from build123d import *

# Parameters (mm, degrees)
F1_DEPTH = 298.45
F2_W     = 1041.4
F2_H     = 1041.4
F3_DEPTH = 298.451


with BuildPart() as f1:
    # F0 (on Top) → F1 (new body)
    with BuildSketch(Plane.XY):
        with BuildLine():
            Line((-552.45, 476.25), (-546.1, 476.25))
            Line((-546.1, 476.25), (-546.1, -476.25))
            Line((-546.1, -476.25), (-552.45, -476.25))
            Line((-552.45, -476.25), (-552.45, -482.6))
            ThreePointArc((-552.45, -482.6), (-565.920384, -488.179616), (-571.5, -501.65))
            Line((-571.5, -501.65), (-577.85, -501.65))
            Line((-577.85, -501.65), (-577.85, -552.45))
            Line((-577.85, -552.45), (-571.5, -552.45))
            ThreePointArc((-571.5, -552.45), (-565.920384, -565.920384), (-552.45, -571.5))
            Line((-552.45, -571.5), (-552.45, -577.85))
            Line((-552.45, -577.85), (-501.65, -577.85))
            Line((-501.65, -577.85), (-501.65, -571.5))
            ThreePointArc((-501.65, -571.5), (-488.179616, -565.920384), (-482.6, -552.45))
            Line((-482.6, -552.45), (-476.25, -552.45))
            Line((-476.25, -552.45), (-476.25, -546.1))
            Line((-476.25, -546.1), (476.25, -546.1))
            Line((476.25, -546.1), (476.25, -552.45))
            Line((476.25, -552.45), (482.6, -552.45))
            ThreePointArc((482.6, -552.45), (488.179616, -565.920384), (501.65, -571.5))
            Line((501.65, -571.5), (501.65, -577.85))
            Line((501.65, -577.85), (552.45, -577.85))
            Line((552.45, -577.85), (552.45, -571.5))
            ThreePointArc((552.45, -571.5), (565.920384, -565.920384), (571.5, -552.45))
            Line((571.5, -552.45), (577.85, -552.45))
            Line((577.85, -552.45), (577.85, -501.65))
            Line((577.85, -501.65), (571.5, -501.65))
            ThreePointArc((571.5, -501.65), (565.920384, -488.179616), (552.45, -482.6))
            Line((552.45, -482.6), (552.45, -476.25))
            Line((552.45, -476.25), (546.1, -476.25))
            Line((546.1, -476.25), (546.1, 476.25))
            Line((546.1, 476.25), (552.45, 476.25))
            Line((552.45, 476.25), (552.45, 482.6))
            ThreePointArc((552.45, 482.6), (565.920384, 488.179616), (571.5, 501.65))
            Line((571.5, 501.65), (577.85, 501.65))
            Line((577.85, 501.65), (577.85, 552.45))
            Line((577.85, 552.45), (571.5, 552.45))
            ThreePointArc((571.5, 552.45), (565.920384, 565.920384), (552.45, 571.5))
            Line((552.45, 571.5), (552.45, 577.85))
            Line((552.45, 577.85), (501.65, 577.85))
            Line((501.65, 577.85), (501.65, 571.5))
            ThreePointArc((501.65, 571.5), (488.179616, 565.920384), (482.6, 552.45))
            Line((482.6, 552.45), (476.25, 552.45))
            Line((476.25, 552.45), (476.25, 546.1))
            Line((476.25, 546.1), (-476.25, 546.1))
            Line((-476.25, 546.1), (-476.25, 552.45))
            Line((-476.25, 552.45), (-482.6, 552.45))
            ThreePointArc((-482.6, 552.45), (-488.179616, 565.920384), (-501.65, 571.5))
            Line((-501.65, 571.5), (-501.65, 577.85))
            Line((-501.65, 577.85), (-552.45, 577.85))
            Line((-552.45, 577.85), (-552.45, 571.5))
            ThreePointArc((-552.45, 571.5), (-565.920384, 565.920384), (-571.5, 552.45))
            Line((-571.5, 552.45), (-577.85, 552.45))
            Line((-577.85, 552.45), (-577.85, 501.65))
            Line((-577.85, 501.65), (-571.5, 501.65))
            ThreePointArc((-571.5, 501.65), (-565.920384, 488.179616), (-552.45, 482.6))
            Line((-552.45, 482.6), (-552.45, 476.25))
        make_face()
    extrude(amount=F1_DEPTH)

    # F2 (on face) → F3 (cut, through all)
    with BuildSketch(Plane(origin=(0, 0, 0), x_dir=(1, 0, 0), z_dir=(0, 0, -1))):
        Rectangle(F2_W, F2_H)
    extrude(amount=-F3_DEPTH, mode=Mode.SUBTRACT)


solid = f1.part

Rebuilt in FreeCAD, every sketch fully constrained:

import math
import FreeCAD as App
import Part
import Sketcher
from FreeCAD import Vector
Q = App.Units.Quantity

doc = App.newDocument("Part")
body = doc.addObject("PartDesign::Body", "Body")

sketch1 = doc.addObject("Sketcher::SketchObject", "Sketch")
body.addObject(sketch1)
sketch1.AttachmentSupport = (doc.XY_Plane, [""])
sketch1.MapMode = "FlatFace"
sketch1.addGeometry([
    Part.LineSegment(Vector(-552, 476, 0), Vector(-546, 476, 0)),
    Part.LineSegment(Vector(-546, 476, 0), Vector(-546, -476, 0)),
    Part.LineSegment(Vector(-546, -476, 0), Vector(-552, -476, 0)),
    Part.LineSegment(Vector(-552, -476, 0), Vector(-552, -483, 0)),
    Part.ArcOfCircle(Part.Circle(Vector(-552, -502, 0), Vector(0, 0, 1), 19), math.radians(90), math.radians(180)),
    Part.LineSegment(Vector(-572, -502, 0), Vector(-578, -502, 0)),
    Part.LineSegment(Vector(-578, -502, 0), Vector(-578, -552, 0)),
    Part.LineSegment(Vector(-578, -552, 0), Vector(-572, -552, 0)),
    Part.ArcOfCircle(Part.Circle(Vector(-552, -552, 0), Vector(0, 0, 1), 19), math.radians(-180), math.radians(-90)),
    Part.LineSegment(Vector(-552, -572, 0), Vector(-552, -578, 0)),
    Part.LineSegment(Vector(-552, -578, 0), Vector(-502, -578, 0)),
    Part.LineSegment(Vector(-502, -578, 0), Vector(-502, -572, 0)),
    Part.ArcOfCircle(Part.Circle(Vector(-502, -552, 0), Vector(0, 0, 1), 19), math.radians(-90), math.radians(0)),
    Part.LineSegment(Vector(-483, -552, 0), Vector(-476, -552, 0)),
    Part.LineSegment(Vector(-476, -552, 0), Vector(-476, -546, 0)),
    Part.LineSegment(Vector(-476, -546, 0), Vector(476, -546, 0)),
    Part.LineSegment(Vector(476, -546, 0), Vector(476, -552, 0)),
    Part.LineSegment(Vector(476, -552, 0), Vector(483, -552, 0)),
    Part.ArcOfCircle(Part.Circle(Vector(502, -552, 0), Vector(0, 0, 1), 19), math.radians(-180), math.radians(-90)),
    Part.LineSegment(Vector(502, -572, 0), Vector(502, -578, 0)),
    Part.LineSegment(Vector(502, -578, 0), Vector(552, -578, 0)),
    Part.LineSegment(Vector(552, -578, 0), Vector(552, -572, 0)),
    Part.ArcOfCircle(Part.Circle(Vector(552, -552, 0), Vector(0, 0, 1), 19), math.radians(-90), math.radians(0)),
    Part.LineSegment(Vector(572, -552, 0), Vector(578, -552, 0)),
    Part.LineSegment(Vector(578, -552, 0), Vector(578, -502, 0)),
    Part.LineSegment(Vector(578, -502, 0), Vector(572, -502, 0)),
    Part.ArcOfCircle(Part.Circle(Vector(552, -502, 0), Vector(0, 0, 1), 19), math.radians(0), math.radians(90)),
    Part.LineSegment(Vector(552, -483, 0), Vector(552, -476, 0)),
    Part.LineSegment(Vector(552, -476, 0), Vector(546, -476, 0)),
    Part.LineSegment(Vector(546, -476, 0), Vector(546, 476, 0)),
    Part.LineSegment(Vector(546, 476, 0), Vector(552, 476, 0)),
    Part.LineSegment(Vector(552, 476, 0), Vector(552, 483, 0)),
    Part.ArcOfCircle(Part.Circle(Vector(552, 502, 0), Vector(0, 0, 1), 19), math.radians(-90), math.radians(0)),
    Part.LineSegment(Vector(572, 502, 0), Vector(578, 502, 0)),
    Part.LineSegment(Vector(578, 502, 0), Vector(578, 552, 0)),
    Part.LineSegment(Vector(578, 552, 0), Vector(572, 552, 0)),
    Part.ArcOfCircle(Part.Circle(Vector(552, 552, 0), Vector(0, 0, 1), 19), math.radians(0), math.radians(90)),
    Part.LineSegment(Vector(552, 572, 0), Vector(552, 578, 0)),
    Part.LineSegment(Vector(552, 578, 0), Vector(502, 578, 0)),
    Part.LineSegment(Vector(502, 578, 0), Vector(502, 572, 0)),
    Part.ArcOfCircle(Part.Circle(Vector(502, 552, 0), Vector(0, 0, 1), 19), math.radians(90), math.radians(180)),
    Part.LineSegment(Vector(483, 552, 0), Vector(476, 552, 0)),
    Part.LineSegment(Vector(476, 552, 0), Vector(476, 546, 0)),
    Part.LineSegment(Vector(476, 546, 0), Vector(-476, 546, 0)),
    Part.LineSegment(Vector(-476, 546, 0), Vector(-476, 552, 0)),
    Part.LineSegment(Vector(-476, 552, 0), Vector(-483, 552, 0)),
    Part.ArcOfCircle(Part.Circle(Vector(-502, 552, 0), Vector(0, 0, 1), 19), math.radians(0), math.radians(90)),
    Part.LineSegment(Vector(-502, 572, 0), Vector(-502, 578, 0)),
    Part.LineSegment(Vector(-502, 578, 0), Vector(-552, 578, 0)),
    Part.LineSegment(Vector(-552, 578, 0), Vector(-552, 572, 0)),
    Part.ArcOfCircle(Part.Circle(Vector(-552, 552, 0), Vector(0, 0, 1), 19), math.radians(90), math.radians(180)),
    Part.LineSegment(Vector(-572, 552, 0), Vector(-578, 552, 0)),
    Part.LineSegment(Vector(-578, 552, 0), Vector(-578, 502, 0)),
    Part.LineSegment(Vector(-578, 502, 0), Vector(-572, 502, 0)),
    Part.ArcOfCircle(Part.Circle(Vector(-552, 502, 0), Vector(0, 0, 1), 19), math.radians(-180), math.radians(-90)),
    Part.LineSegment(Vector(-552, 483, 0), Vector(-552, 476, 0)),
], False)
sketch1.addConstraint([
    Sketcher.Constraint("Coincident", 0, 2, 1, 1),
    Sketcher.Constraint("Coincident", 1, 2, 2, 1),
    Sketcher.Constraint("Coincident", 2, 2, 3, 1),
    Sketcher.Constraint("Coincident", 3, 2, 4, 1),
    Sketcher.Constraint("Coincident", 4, 2, 5, 1),
    Sketcher.Constraint("Coincident", 5, 2, 6, 1),
    Sketcher.Constraint("Coincident", 6, 2, 7, 1),
    Sketcher.Constraint("Coincident", 7, 2, 8, 1),
    Sketcher.Constraint("Coincident", 8, 2, 9, 1),
    Sketcher.Constraint("Coincident", 9, 2, 10, 1),
    Sketcher.Constraint("Coincident", 10, 2, 11, 1),
    Sketcher.Constraint("Coincident", 11, 2, 12, 1),
    Sketcher.Constraint("Coincident", 12, 2, 13, 1),
    Sketcher.Constraint("Coincident", 13, 2, 14, 1),
    Sketcher.Constraint("Coincident", 14, 2, 15, 1),
    Sketcher.Constraint("Coincident", 15, 2, 16, 1),
    Sketcher.Constraint("Coincident", 16, 2, 17, 1),
    Sketcher.Constraint("Coincident", 17, 2, 18, 1),
    Sketcher.Constraint("Coincident", 18, 2, 19, 1),
    Sketcher.Constraint("Coincident", 19, 2, 20, 1),
    Sketcher.Constraint("Coincident", 20, 2, 21, 1),
    Sketcher.Constraint("Coincident", 21, 2, 22, 1),
    Sketcher.Constraint("Coincident", 22, 2, 23, 1),
    Sketcher.Constraint("Coincident", 23, 2, 24, 1),
    Sketcher.Constraint("Coincident", 24, 2, 25, 1),
    Sketcher.Constraint("Coincident", 25, 2, 26, 1),
    Sketcher.Constraint("Coincident", 26, 2, 27, 1),
    Sketcher.Constraint("Coincident", 27, 2, 28, 1),
    Sketcher.Constraint("Coincident", 28, 2, 29, 1),
    Sketcher.Constraint("Coincident", 29, 2, 30, 1),
    Sketcher.Constraint("Coincident", 30, 2, 31, 1),
    Sketcher.Constraint("Coincident", 31, 2, 32, 1),
    Sketcher.Constraint("Coincident", 32, 2, 33, 1),
    Sketcher.Constraint("Coincident", 33, 2, 34, 1),
    Sketcher.Constraint("Coincident", 34, 2, 35, 1),
    Sketcher.Constraint("Coincident", 35, 2, 36, 1),
    Sketcher.Constraint("Coincident", 36, 2, 37, 1),
    Sketcher.Constraint("Coincident", 37, 2, 38, 1),
    Sketcher.Constraint("Coincident", 38, 2, 39, 1),
    Sketcher.Constraint("Coincident", 39, 2, 40, 1),
    Sketcher.Constraint("Coincident", 40, 2, 41, 1),
    Sketcher.Constraint("Coincident", 41, 2, 42, 1),
    Sketcher.Constraint("Coincident", 42, 2, 43, 1),
    Sketcher.Constraint("Coincident", 43, 2, 44, 1),
    Sketcher.Constraint("Coincident", 44, 2, 45, 1),
    Sketcher.Constraint("Coincident", 45, 2, 46, 1),
    Sketcher.Constraint("Coincident", 46, 2, 47, 1),
    Sketcher.Constraint("Coincident", 47, 2, 48, 1),
    Sketcher.Constraint("Coincident", 48, 2, 49, 1),
    Sketcher.Constraint("Coincident", 49, 2, 50, 1),
    Sketcher.Constraint("Coincident", 50, 2, 51, 1),
    Sketcher.Constraint("Coincident", 51, 2, 52, 1),
    Sketcher.Constraint("Coincident", 52, 2, 53, 1),
    Sketcher.Constraint("Coincident", 53, 2, 54, 1),
    Sketcher.Constraint("Coincident", 54, 2, 55, 1),
    Sketcher.Constraint("Coincident", 55, 2, 0, 1),
    Sketcher.Constraint("Horizontal", 0),
    Sketcher.Constraint("Vertical", 1),
    Sketcher.Constraint("Horizontal", 2),
    Sketcher.Constraint("Vertical", 3),
    Sketcher.Constraint("Horizontal", 5),
    Sketcher.Constraint("Vertical", 6),
    Sketcher.Constraint("Horizontal", 7),
    Sketcher.Constraint("Vertical", 9),
    Sketcher.Constraint("Horizontal", 10),
    Sketcher.Constraint("Vertical", 11),
    Sketcher.Constraint("Horizontal", 13),
    Sketcher.Constraint("Vertical", 14),
    Sketcher.Constraint("Horizontal", 15),
    Sketcher.Constraint("Vertical", 16),
    Sketcher.Constraint("Horizontal", 17),
    Sketcher.Constraint("Vertical", 19),
    Sketcher.Constraint("Horizontal", 20),
    Sketcher.Constraint("Vertical", 21),
    Sketcher.Constraint("Horizontal", 23),
    Sketcher.Constraint("Vertical", 24),
    Sketcher.Constraint("Horizontal", 25),
    Sketcher.Constraint("Vertical", 27),
    Sketcher.Constraint("Horizontal", 28),
    Sketcher.Constraint("Vertical", 29),
    Sketcher.Constraint("Horizontal", 30),
    Sketcher.Constraint("Vertical", 31),
    Sketcher.Constraint("Horizontal", 33),
    Sketcher.Constraint("Vertical", 34),
    Sketcher.Constraint("Horizontal", 35),
    Sketcher.Constraint("Vertical", 37),
    Sketcher.Constraint("Horizontal", 38),
    Sketcher.Constraint("Vertical", 39),
    Sketcher.Constraint("Horizontal", 41),
    Sketcher.Constraint("Vertical", 42),
    Sketcher.Constraint("Horizontal", 43),
    Sketcher.Constraint("Vertical", 44),
    Sketcher.Constraint("Horizontal", 45),
    Sketcher.Constraint("Vertical", 47),
    Sketcher.Constraint("Horizontal", 48),
    Sketcher.Constraint("Vertical", 49),
    Sketcher.Constraint("Horizontal", 51),
    Sketcher.Constraint("Vertical", 52),
    Sketcher.Constraint("Horizontal", 53),
    Sketcher.Constraint("Vertical", 55),
    Sketcher.Constraint("Equal", 4, 8),
    Sketcher.Constraint("Equal", 8, 12),
    Sketcher.Constraint("Equal", 12, 18),
    Sketcher.Constraint("Equal", 18, 22),
    Sketcher.Constraint("Equal", 22, 26),
    Sketcher.Constraint("Equal", 26, 32),
    Sketcher.Constraint("Equal", 32, 36),
    Sketcher.Constraint("Equal", 36, 40),
    Sketcher.Constraint("Equal", 40, 46),
    Sketcher.Constraint("Equal", 46, 50),
    Sketcher.Constraint("Equal", 50, 54),
    Sketcher.Constraint("Symmetric", 4, 3, 32, 3, -1, 1),
    Sketcher.Constraint("Symmetric", 8, 3, 36, 3, -1, 1),
    Sketcher.Constraint("Symmetric", 12, 3, 40, 3, -1, 1),
    Sketcher.Constraint("Symmetric", 18, 3, 46, 3, -1, 1),
    Sketcher.Constraint("Symmetric", 22, 3, 50, 3, -1, 1),
    Sketcher.Constraint("Symmetric", 26, 3, 54, 3, -1, 1),
    Sketcher.Constraint("Symmetric", 0, 2, 28, 2, -1, 1),
    Sketcher.Constraint("Symmetric", 2, 2, 30, 2, -1, 1),
    Sketcher.Constraint("Symmetric", 5, 2, 33, 2, -1, 1),
    Sketcher.Constraint("Symmetric", 9, 2, 37, 2, -1, 1),
    Sketcher.Constraint("Symmetric", 13, 2, 41, 2, -1, 1),
    Sketcher.Constraint("Symmetric", 15, 2, 43, 2, -1, 1),
    Sketcher.Constraint("Symmetric", 19, 2, 47, 2, -1, 1),
    Sketcher.Constraint("Symmetric", 23, 2, 51, 2, -1, 1),
    Sketcher.Constraint("Symmetric", 12, 3, 18, 3, -2),
    Sketcher.Constraint("Symmetric", 8, 3, 22, 3, -2),
    Sketcher.Constraint("Symmetric", 4, 3, 26, 3, -2),
    Sketcher.Constraint("Symmetric", 13, 2, 16, 2, -2),
    Sketcher.Constraint("Symmetric", 10, 2, 19, 2, -2),
    Sketcher.Constraint("Symmetric", 6, 2, 23, 2, -2),
    Sketcher.Constraint("Symmetric", 2, 2, 27, 2, -2),
    Sketcher.Constraint("Horizontal", 8, 3, 12, 3),
    Sketcher.Constraint("Horizontal", 26, 3, 4, 2),
    Sketcher.Constraint("Horizontal", 22, 3, 6, 2),
    Sketcher.Constraint("Horizontal", 7, 2, 12, 2),
    Sketcher.Constraint("Horizontal", 5, 2, 24, 2),
    Sketcher.Constraint("Horizontal", 50, 3, 34, 2),
    Sketcher.Constraint("Horizontal", 41, 2, 44, 2),
    Sketcher.Constraint("Horizontal", 33, 2, 52, 2),
    Sketcher.Constraint("Vertical", 4, 3, 8, 3),
    Sketcher.Constraint("Vertical", 54, 3, 2, 2),
    Sketcher.Constraint("Vertical", 3, 2, 8, 2),
    Sketcher.Constraint("Vertical", 46, 3, 10, 2),
    Sketcher.Constraint("Vertical", 36, 3, 20, 2),
    Sketcher.Constraint("Vertical", 19, 2, 38, 2),
    Sketcher.Constraint("Vertical", 9, 2, 48, 2),
    Sketcher.Constraint("Vertical", 49, 2, 54, 2),
    Sketcher.Constraint("Equal", 2, 5),
    Sketcher.Constraint("Equal", 7, 13),
    Sketcher.Constraint("Equal", 43, 1),
    Sketcher.Constraint("Equal", 53, 3),
    Sketcher.Constraint("Equal", 48, 6),
    Sketcher.Constraint("Equal", 3, 9),
    Sketcher.Constraint("Equal", 11, 14),
    Sketcher.Constraint("DistanceX", 10, 1, 10, 2, Q("2 in")),
    Sketcher.Constraint("Radius", 4, Q("0.75 in")),
    Sketcher.Constraint("DistanceX", 15, 1, 15, 2, Q("37.5 in")),
    Sketcher.Constraint("DistanceY", 3, 2, -1, 1, Q("19 in")),
])
pad1 = doc.addObject("PartDesign::Pad", "Pad")
body.addObject(pad1)
pad1.Profile = sketch1
pad1.Length = Q("11.75 in")

sketch2 = doc.addObject("Sketcher::SketchObject", "Sketch001")
body.addObject(sketch2)
sketch2.AttachmentSupport = (doc.XY_Plane, [""])
sketch2.MapMode = "FlatFace"
sketch2.addGeometry([
    Part.LineSegment(Vector(-521, -521, 0), Vector(-521, 521, 0)),
    Part.LineSegment(Vector(-521, 521, 0), Vector(521, 521, 0)),
    Part.LineSegment(Vector(521, 521, 0), Vector(521, -521, 0)),
    Part.LineSegment(Vector(521, -521, 0), Vector(-521, -521, 0)),
], False)
sketch2.addConstraint([
    Sketcher.Constraint("Coincident", 0, 2, 1, 1),
    Sketcher.Constraint("Coincident", 1, 2, 2, 1),
    Sketcher.Constraint("Coincident", 2, 2, 3, 1),
    Sketcher.Constraint("Coincident", 3, 2, 0, 1),
    Sketcher.Constraint("Vertical", 0),
    Sketcher.Constraint("Horizontal", 1),
    Sketcher.Constraint("Vertical", 2),
    Sketcher.Constraint("Horizontal", 3),
    Sketcher.Constraint("Symmetric", 0, 2, 2, 2, -1, 1),
    Sketcher.Constraint("Equal", 3, 0),
    Sketcher.Constraint("DistanceX", 1, 1, 1, 2, Q("41 in")),
])
pocket1 = doc.addObject("PartDesign::Pocket", "Pocket")
body.addObject(pocket1)
pocket1.Profile = sketch2
pocket1.Type = "ThroughAll"
pocket1.Reversed = True

doc.recompute()
